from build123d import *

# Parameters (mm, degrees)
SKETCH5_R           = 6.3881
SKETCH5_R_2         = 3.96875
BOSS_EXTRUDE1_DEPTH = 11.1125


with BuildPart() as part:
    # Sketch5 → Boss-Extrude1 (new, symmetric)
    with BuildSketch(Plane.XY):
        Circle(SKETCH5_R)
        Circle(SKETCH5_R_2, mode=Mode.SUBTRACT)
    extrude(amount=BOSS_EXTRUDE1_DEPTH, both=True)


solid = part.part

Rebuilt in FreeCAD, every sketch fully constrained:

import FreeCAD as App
import Part
import Sketcher
from FreeCAD import Vector
Q = App.Units.Quantity

doc = App.newDocument("Part")
body = doc.addObject("PartDesign::Body", "Body")

# Sketch on XY plane
sketch1 = body.newObject("Sketcher::SketchObject", "Sketch")
sketch1.AttachmentSupport = (doc.getObject("XY_Plane"), [""])
sketch1.MapMode = "FlatFace"
sketch1.addGeometry([
    Part.Circle(Vector(0, 0, 0), Vector(0, 0, 1), 6.4),
    Part.Circle(Vector(0, 0, 0), Vector(0, 0, 1), 4),
], False)
sketch1.addConstraint([
    Sketcher.Constraint("Coincident", 0, 3, -1, 1),
    Sketcher.Constraint("Coincident", 1, 3, -1, 1),
    Sketcher.Constraint("Diameter", 0, Q("0.503 in")),
    Sketcher.Constraint("Diameter", 1, Q("0.3125 in")),
])
pad1 = body.newObject("PartDesign::Pad", "Pad")
pad1.Profile = sketch1
pad1.Length = Q("0.875 in")
pad1.Midplane = True

doc.recompute()
